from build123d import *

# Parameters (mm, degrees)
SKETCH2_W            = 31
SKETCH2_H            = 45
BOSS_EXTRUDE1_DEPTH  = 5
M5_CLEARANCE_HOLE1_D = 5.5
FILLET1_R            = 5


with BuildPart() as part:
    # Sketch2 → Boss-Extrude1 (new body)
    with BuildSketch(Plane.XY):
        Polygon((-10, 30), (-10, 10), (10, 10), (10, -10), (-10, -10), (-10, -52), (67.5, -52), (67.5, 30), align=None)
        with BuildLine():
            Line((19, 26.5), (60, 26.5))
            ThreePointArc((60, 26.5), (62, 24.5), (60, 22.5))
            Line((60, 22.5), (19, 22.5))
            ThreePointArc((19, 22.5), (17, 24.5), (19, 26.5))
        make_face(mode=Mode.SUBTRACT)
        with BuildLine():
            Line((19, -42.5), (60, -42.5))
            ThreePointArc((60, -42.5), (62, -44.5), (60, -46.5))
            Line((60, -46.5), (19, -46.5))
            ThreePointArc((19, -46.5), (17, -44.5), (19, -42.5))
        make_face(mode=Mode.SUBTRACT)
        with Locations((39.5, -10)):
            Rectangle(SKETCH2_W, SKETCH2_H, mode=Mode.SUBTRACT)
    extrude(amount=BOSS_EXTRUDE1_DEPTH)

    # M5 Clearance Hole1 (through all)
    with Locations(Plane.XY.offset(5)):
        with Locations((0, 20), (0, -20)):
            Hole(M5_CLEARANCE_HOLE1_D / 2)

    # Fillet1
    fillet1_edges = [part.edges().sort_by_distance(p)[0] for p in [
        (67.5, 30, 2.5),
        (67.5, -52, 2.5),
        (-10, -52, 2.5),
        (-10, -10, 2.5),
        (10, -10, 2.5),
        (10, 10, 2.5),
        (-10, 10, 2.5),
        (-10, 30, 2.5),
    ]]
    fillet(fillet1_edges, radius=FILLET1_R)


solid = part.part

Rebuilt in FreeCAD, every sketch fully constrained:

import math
import FreeCAD as App
import Part
import Sketcher

V = App.Vector
Q = App.Units.Quantity


def edges_at(feature, points):
    """Names of the edges that pass closest to the given points."""
    edges = feature.Shape.Edges
    near = lambda p: min(range(len(edges)), key=lambda i: edges[i].distToShape(Part.Vertex(*p))[0])
    return sorted({f"Edge{near(p) + 1}" for p in points})

doc = App.newDocument("Part")
params = doc.addObject("Spreadsheet::Sheet", "Params")
for row, (alias, value) in enumerate([
    ("sketch1_radius", "2 mm"),
    ("sketch1_width", "20 mm"),
    ("sketch1_width2", "41 mm"),
    ("sketch1_width3", "31 mm"),
    ("sketch1_height", "42 mm"),
    ("pad1_length", "5 mm"),
    ("sketch2_diameter", "5.5 mm"),
    ("hole_diameter", "5.5 mm"),
    ("fillet_radius", "5 mm"),
], start=1):
    params.set(f"A{row}", alias)
    params.set(f"B{row}", "=" + value)
    params.setAlias(f"B{row}", alias)

body = doc.addObject("PartDesign::Body", "Body")

sketch1 = doc.addObject("Sketcher::SketchObject", "Sketch")
body.addObject(sketch1)
sketch1.AttachmentSupport = (doc.XY_Plane, [""])
sketch1.MapMode = "FlatFace"
sketch1.addGeometry([
    Part.LineSegment(V(-10, 30, 0), V(-10, 10, 0)),
    Part.LineSegment(V(-10, 10, 0), V(10, 10, 0)),
    Part.LineSegment(V(10, 10, 0), V(10, -10, 0)),
    Part.LineSegment(V(10, -10, 0), V(-10, -10, 0)),
    Part.LineSegment(V(-10, -10, 0), V(-10, -52, 0)),
    Part.LineSegment(V(-10, -52, 0), V(67.5, -52, 0)),
    Part.LineSegment(V(67.5, -52, 0), V(67.5, 30, 0)),
    Part.LineSegment(V(67.5, 30, 0), V(-10, 30, 0)),
    Part.ArcOfCircle(Part.Circle(V(19, -44.5, 0), V(0, 0, 1), 2), math.radians(90), math.radians(270)),
    Part.LineSegment(V(19, -42.5, 0), V(60, -42.5, 0)),
    Part.ArcOfCircle(Part.Circle(V(60, -44.5, 0), V(0, 0, 1), 2), math.radians(-90), math.radians(90)),
    Part.LineSegment(V(60, -46.5, 0), V(19, -46.5, 0)),
    Part.LineSegment(V(55, -32.5, 0), V(24, -32.5, 0)),
    Part.LineSegment(V(24, -32.5, 0), V(24, 12.5, 0)),
    Part.LineSegment(V(24, 12.5, 0), V(55, 12.5, 0)),
    Part.LineSegment(V(55, 12.5, 0), V(55, -32.5, 0)),
    Part.ArcOfCircle(Part.Circle(V(19, 24.5, 0), V(0, 0, 1), 2), math.radians(90), math.radians(270)),
    Part.LineSegment(V(19, 26.5, 0), V(60, 26.5, 0)),
    Part.ArcOfCircle(Part.Circle(V(60, 24.5, 0), V(0, 0, 1), 2), math.radians(-90), math.radians(90)),
    Part.LineSegment(V(60, 22.5, 0), V(19, 22.5, 0)),
], False)
sketch1.addConstraint([
    Sketcher.Constraint("Coincident", 0, 2, 1, 1),
    Sketcher.Constraint("Coincident", 1, 2, 2, 1),
    Sketcher.Constraint("Coincident", 2, 2, 3, 1),
    Sketcher.Constraint("Coincident", 3, 2, 4, 1),
    Sketcher.Constraint("Coincident", 4, 2, 5, 1),
    Sketcher.Constraint("Coincident", 5, 2, 6, 1),
    Sketcher.Constraint("Coincident", 6, 2, 7, 1),
    Sketcher.Constraint("Coincident", 7, 2, 0, 1),
    Sketcher.Constraint("Tangent", 8, 1, 9, 1),
    Sketcher.Constraint("Tangent", 9, 2, 10, 2),
    Sketcher.Constraint("Tangent", 10, 1, 11, 1),
    Sketcher.Constraint("Tangent", 11, 2, 8, 2),
    Sketcher.Constraint("Coincident", 12, 2, 13, 1),
    Sketcher.Constraint("Coincident", 13, 2, 14, 1),
    Sketcher.Constraint("Coincident", 14, 2, 15, 1),
    Sketcher.Constraint("Coincident", 15, 2, 12, 1),
    Sketcher.Constraint("Tangent", 16, 1, 17, 1),
    Sketcher.Constraint("Tangent", 17, 2, 18, 2),
    Sketcher.Constraint("Tangent", 18, 1, 19, 1),
    Sketcher.Constraint("Tangent", 19, 2, 16, 2),
    Sketcher.Constraint("Vertical", 0),
    Sketcher.Constraint("Horizontal", 1),
    Sketcher.Constraint("Vertical", 2),
    Sketcher.Constraint("Horizontal", 3),
    Sketcher.Constraint("Vertical", 4),
    Sketcher.Constraint("Horizontal", 5),
    Sketcher.Constraint("Vertical", 6),
    Sketcher.Constraint("Horizontal", 7),
    Sketcher.Constraint("Horizontal", 9),
    Sketcher.Constraint("Horizontal", 11),
    Sketcher.Constraint("Horizontal", 12),
    Sketcher.Constraint("Vertical", 13),
    Sketcher.Constraint("Horizontal", 14),
    Sketcher.Constraint("Vertical", 15),
    Sketcher.Constraint("Horizontal", 17),
    Sketcher.Constraint("Horizontal", 19),
    Sketcher.Constraint("Equal", 10, 16),
    Sketcher.Constraint("Symmetric", 0, 2, 2, 2, -1, 1),
    Sketcher.Constraint("Vertical", 8, 3, 16, 3),
    Sketcher.Constraint("Vertical", 10, 3, 18, 3),
    Sketcher.Constraint("Vertical", 0, 2, 3, 2),
    Sketcher.Constraint("Equal", 3, 0),
    Sketcher.Constraint("Equal", 0, 2),
    Sketcher.Constraint("Radius", 8, Q("2 mm")),
    Sketcher.Constraint("DistanceX", 1, 1, 1, 2, Q("20 mm")),
    Sketcher.Constraint("DistanceX", 9, 1, 9, 2, Q("41 mm")),
    Sketcher.Constraint("DistanceX", 12, 2, 12, 1, Q("31 mm")),
    Sketcher.Constraint("DistanceY", 4, 2, 4, 1, Q("42 mm")),
    Sketcher.Constraint("DistanceY", 13, 1, 13, 2, Q("45 mm")),
    Sketcher.Constraint("DistanceX", 5, 1, 5, 2, Q("77.5 mm")),
    Sketcher.Constraint("DistanceX", -1, 1, 8, 3, Q("19 mm")),
    Sketcher.Constraint("DistanceX", -1, 1, 12, 2, Q("24 mm")),
    Sketcher.Constraint("DistanceY", 8, 3, 16, 3, Q("69 mm")),
    Sketcher.Constraint("DistanceY", 8, 1, 12, 2, Q("10 mm")),
    Sketcher.Constraint("DistanceY", 8, 3, -1, 1, Q("44.5 mm")),
])
sketch1.setExpression("Constraints[43]", "Params.sketch1_radius")
sketch1.setExpression("Constraints[44]", "Params.sketch1_width")
sketch1.setExpression("Constraints[45]", "Params.sketch1_width2")
sketch1.setExpression("Constraints[46]", "Params.sketch1_width3")
sketch1.setExpression("Constraints[47]", "Params.sketch1_height")
pad1 = doc.addObject("PartDesign::Pad", "Pad")
body.addObject(pad1)
pad1.Profile = sketch1
pad1.setExpression("Length", "Params.pad1_length")

sketch2 = doc.addObject("Sketcher::SketchObject", "Sketch001")
body.addObject(sketch2)
sketch2.AttachmentSupport = (doc.XY_Plane, [""])
sketch2.MapMode = "FlatFace"
sketch2.AttachmentOffset = App.Placement(V(0, 0, 5), App.Rotation())
sketch2.addGeometry([
    Part.Circle(V(0, 20, 0), V(0, 0, 1), 2.75),
    Part.Circle(V(0, -20, 0), V(0, 0, 1), 2.75),
], False)
sketch2.addConstraint([
    Sketcher.Constraint("Equal", 0, 1),
    Sketcher.Constraint("Symmetric", 0, 3, 1, 3, -1, 1),
    Sketcher.Constraint("PointOnObject", 0, 3, -2),
    Sketcher.Constraint("Diameter", 0, Q("5.5 mm")),
    Sketcher.Constraint("DistanceY", -1, 1, 0, 3, Q("20 mm")),
])
sketch2.setExpression("Constraints[3]", "Params.sketch2_diameter")
doc.recompute()
hole = doc.addObject("PartDesign::Hole", "Hole")
body.addObject(hole)
hole.Profile = sketch2
hole.ThreadType = "None"
hole.setExpression("Diameter", "Params.hole_diameter")
hole.DepthType = "ThroughAll"
doc.recompute()

fillet = doc.addObject("PartDesign::Fillet", "Fillet")
body.addObject(fillet)
fillet.Base = (hole, edges_at(hole, [
    (67.5, 30, 2.5),
    (67.5, -52, 2.5),
    (-10, -52, 2.5),
    (-10, -10, 2.5),
    (10, -10, 2.5),
    (10, 10, 2.5),
    (-10, 10, 2.5),
    (-10, 30, 2.5),
]))
fillet.setExpression("Radius", "Params.fillet_radius")

doc.recompute()
